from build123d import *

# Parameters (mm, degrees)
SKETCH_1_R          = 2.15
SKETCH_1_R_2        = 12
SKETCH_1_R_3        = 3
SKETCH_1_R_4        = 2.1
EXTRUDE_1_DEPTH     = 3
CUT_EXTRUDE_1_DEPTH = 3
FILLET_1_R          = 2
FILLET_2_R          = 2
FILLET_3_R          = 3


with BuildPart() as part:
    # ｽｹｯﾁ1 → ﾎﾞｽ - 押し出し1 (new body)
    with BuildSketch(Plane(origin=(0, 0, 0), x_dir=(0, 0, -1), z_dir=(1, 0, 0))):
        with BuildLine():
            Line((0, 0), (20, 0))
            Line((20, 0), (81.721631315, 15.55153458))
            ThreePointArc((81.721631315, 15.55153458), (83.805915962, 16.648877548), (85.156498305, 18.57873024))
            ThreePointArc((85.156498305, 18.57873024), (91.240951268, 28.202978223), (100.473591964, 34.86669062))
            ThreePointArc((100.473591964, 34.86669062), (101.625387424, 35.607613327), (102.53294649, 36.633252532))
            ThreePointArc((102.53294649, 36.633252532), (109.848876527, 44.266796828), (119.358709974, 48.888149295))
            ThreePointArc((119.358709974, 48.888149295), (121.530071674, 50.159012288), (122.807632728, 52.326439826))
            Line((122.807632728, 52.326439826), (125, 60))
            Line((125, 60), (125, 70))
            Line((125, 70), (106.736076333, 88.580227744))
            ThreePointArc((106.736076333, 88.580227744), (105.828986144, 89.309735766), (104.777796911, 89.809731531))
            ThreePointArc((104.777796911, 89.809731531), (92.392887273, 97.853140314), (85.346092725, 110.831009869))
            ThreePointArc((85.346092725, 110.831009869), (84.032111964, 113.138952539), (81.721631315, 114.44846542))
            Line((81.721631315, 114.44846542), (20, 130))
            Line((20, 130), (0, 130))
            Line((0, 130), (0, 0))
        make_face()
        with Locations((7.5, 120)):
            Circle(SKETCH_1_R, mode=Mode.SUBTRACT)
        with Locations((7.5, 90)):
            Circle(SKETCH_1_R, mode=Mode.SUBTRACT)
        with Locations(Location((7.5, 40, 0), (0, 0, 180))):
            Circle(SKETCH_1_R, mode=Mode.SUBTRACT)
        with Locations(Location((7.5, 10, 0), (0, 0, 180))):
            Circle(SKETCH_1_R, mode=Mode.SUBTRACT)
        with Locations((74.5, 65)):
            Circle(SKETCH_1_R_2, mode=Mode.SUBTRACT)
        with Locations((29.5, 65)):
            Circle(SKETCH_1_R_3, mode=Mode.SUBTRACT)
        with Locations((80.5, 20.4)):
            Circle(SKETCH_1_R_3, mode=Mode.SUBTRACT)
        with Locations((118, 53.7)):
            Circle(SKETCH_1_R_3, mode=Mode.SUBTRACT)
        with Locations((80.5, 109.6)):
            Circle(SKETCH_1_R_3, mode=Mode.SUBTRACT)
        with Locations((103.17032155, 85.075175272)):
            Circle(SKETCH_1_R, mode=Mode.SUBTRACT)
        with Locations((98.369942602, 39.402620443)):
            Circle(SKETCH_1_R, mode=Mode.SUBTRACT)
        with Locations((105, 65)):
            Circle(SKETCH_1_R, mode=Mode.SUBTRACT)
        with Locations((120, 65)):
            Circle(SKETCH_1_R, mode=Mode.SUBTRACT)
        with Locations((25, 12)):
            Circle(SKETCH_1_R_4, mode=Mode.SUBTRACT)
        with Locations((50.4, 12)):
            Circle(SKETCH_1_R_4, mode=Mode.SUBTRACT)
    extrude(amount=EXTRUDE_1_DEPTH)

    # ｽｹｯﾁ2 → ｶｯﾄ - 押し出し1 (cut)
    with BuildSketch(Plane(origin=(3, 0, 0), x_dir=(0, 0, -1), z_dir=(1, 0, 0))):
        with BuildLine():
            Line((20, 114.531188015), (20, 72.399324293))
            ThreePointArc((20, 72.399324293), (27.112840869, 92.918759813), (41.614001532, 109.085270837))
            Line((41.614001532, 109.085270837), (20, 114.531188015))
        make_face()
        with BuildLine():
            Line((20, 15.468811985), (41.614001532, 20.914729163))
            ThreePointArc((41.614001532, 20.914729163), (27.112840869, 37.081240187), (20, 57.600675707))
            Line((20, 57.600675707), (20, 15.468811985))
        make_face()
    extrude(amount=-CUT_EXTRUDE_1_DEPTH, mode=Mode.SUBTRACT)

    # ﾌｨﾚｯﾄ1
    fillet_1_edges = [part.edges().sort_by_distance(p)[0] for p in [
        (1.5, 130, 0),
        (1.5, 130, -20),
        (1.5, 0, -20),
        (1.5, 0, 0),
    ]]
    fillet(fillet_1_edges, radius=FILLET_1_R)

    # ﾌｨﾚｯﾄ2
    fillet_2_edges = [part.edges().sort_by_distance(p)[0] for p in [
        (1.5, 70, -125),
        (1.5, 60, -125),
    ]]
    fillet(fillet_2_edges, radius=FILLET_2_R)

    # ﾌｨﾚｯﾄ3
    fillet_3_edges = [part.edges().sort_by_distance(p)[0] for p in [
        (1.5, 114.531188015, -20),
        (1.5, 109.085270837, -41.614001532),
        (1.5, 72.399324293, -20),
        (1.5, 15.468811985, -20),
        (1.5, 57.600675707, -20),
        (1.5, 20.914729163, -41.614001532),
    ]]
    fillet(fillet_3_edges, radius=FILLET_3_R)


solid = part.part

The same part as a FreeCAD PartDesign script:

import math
import FreeCAD as App
import Part
import Sketcher

V = App.Vector
Q = App.Units.Quantity


def edges_at(feature, points):
    """Names of the edges that pass closest to the given points."""
    edges = feature.Shape.Edges
    near = lambda p: min(range(len(edges)), key=lambda i: edges[i].distToShape(Part.Vertex(*p))[0])
    return sorted({f"Edge{near(p) + 1}" for p in points})

doc = App.newDocument("Part")
body = doc.addObject("PartDesign::Body", "Body")

sketch1 = doc.addObject("Sketcher::SketchObject", "Sketch")
body.addObject(sketch1)
sketch1.AttachmentSupport = (doc.YZ_Plane, [""])
sketch1.MapMode = "FlatFace"
sketch1.addGeometry([
    Part.LineSegment(V(0, 0, 0), V(0, -20, 0)),
    Part.LineSegment(V(0, -20, 0), V(15.6, -81.7, 0)),
    Part.ArcOfCircle(Part.Circle(V(20.4, -80.5, 0), V(0, 0, 1), 5), math.radians(-166), math.radians(-111)),
    Part.ArcOfCircle(Part.Circle(V(7.7, -113.1, 0), V(0, 0, 1), 30), math.radians(25), math.radians(69)),
    Part.ArcOfCircle(Part.Circle(V(39.4, -98.4, 0), V(0, 0, 1), 5), math.radians(-155), math.radians(-124)),
    Part.ArcOfCircle(Part.Circle(V(20, -127.5, 0), V(0, 0, 1), 30), math.radians(16), math.radians(56)),
    Part.ArcOfCircle(Part.Circle(V(53.7, -118, 0), V(0, 0, 1), 5), math.radians(-164), math.radians(-106)),
    Part.LineSegment(V(52.3, -122.8, 0), V(60, -125, 0)),
    Part.LineSegment(V(60, -125, 0), V(70, -125, 0)),
    Part.LineSegment(V(70, -125, 0), V(88.6, -106.7, 0)),
    Part.ArcOfCircle(Part.Circle(V(85.1, -103.2, 0), V(0, 0, 1), 5), math.radians(-45), math.radians(-19)),
    Part.ArcOfCircle(Part.Circle(V(118.2, -114.4, 0), V(0, 0, 1), 30), math.radians(104), math.radians(161)),
    Part.ArcOfCircle(Part.Circle(V(109.6, -80.5, 0), V(0, 0, 1), 5), math.radians(-76), math.radians(-14)),
    Part.LineSegment(V(114.4, -81.7, 0), V(130, -20, 0)),
    Part.LineSegment(V(130, -20, 0), V(130, 0, 0)),
    Part.LineSegment(V(130, 0, 0), V(0, 0, 0)),
    Part.Circle(V(10, -7.5, 0), V(0, 0, 1), 2.1),
    Part.Circle(V(12, -25, 0), V(0, 0, 1), 2.1),
    Part.Circle(V(12, -50.4, 0), V(0, 0, 1), 2.1),
    Part.Circle(V(40, -7.5, 0), V(0, 0, 1), 2.1),
    Part.Circle(V(20.4, -80.5, 0), V(0, 0, 1), 3),
    Part.Circle(V(39.4, -98.4, 0), V(0, 0, 1), 2.1),
    Part.Circle(V(53.7, -118, 0), V(0, 0, 1), 3),
    Part.Circle(V(65, -29.5, 0), V(0, 0, 1), 3),
    Part.Circle(V(90, -7.5, 0), V(0, 0, 1), 2.1),
    Part.Circle(V(120, -7.5, 0), V(0, 0, 1), 2.1),
    Part.Circle(V(65, -74.5, 0), V(0, 0, 1), 12),
    Part.Circle(V(65, -105, 0), V(0, 0, 1), 2.1),
    Part.Circle(V(65, -120, 0), V(0, 0, 1), 2.1),
    Part.Circle(V(85.1, -103.2, 0), V(0, 0, 1), 2.1),
    Part.Circle(V(109.6, -80.5, 0), V(0, 0, 1), 3),
], False)
sketch1.addConstraint([
    Sketcher.Constraint("Coincident", 0, 2, 1, 1),
    Sketcher.Constraint("Tangent", 1, 2, 2, 1),
    Sketcher.Constraint("Tangent", 2, 2, 3, 2),
    Sketcher.Constraint("Tangent", 3, 1, 4, 1),
    Sketcher.Constraint("Tangent", 4, 2, 5, 2),
    Sketcher.Constraint("Tangent", 5, 1, 6, 1),
    Sketcher.Constraint("Tangent", 6, 2, 7, 1),
    Sketcher.Constraint("Coincident", 7, 2, 8, 1),
    Sketcher.Constraint("Coincident", 8, 2, 9, 1),
    Sketcher.Constraint("Tangent", 9, 2, 10, 1),
    Sketcher.Constraint("Tangent", 10, 2, 11, 2),
    Sketcher.Constraint("Tangent", 11, 1, 12, 1),
    Sketcher.Constraint("Tangent", 12, 2, 13, 1),
    Sketcher.Constraint("Coincident", 13, 2, 14, 1),
    Sketcher.Constraint("Coincident", 14, 2, 15, 1),
    Sketcher.Constraint("Coincident", 15, 2, 0, 1),
    Sketcher.Constraint("Vertical", 0),
    Sketcher.Constraint("Horizontal", 8),
    Sketcher.Constraint("Vertical", 14),
    Sketcher.Constraint("Horizontal", 15),
    Sketcher.Constraint("Coincident", 15, 2, -1, 1),
    Sketcher.Constraint("Coincident", 20, 3, 2, 3),
    Sketcher.Constraint("Coincident", 21, 3, 4, 3),
    Sketcher.Constraint("Coincident", 22, 3, 6, 3),
    Sketcher.Constraint("Coincident", 29, 3, 10, 3),
    Sketcher.Constraint("Coincident", 30, 3, 12, 3),
    Sketcher.Constraint("Equal", 2, 4),
    Sketcher.Constraint("Equal", 3, 5),
    Sketcher.Constraint("Equal", 4, 6),
    Sketcher.Constraint("Equal", 6, 10),
    Sketcher.Constraint("Equal", 5, 11),
    Sketcher.Constraint("Equal", 10, 12),
    Sketcher.Constraint("Equal", 17, 18),
    Sketcher.Constraint("Equal", 16, 19),
    Sketcher.Constraint("Equal", 19, 21),
    Sketcher.Constraint("Equal", 20, 22),
    Sketcher.Constraint("Equal", 22, 23),
    Sketcher.Constraint("Equal", 21, 24),
    Sketcher.Constraint("Equal", 24, 25),
    Sketcher.Constraint("Equal", 25, 27),
    Sketcher.Constraint("Equal", 27, 28),
    Sketcher.Constraint("Equal", 28, 29),
    Sketcher.Constraint("Equal", 23, 30),
    Sketcher.Constraint("Horizontal", 2, 3, 12, 3),
    Sketcher.Constraint("Horizontal", 16, 3, 19, 3),
    Sketcher.Constraint("Horizontal", 19, 3, 24, 3),
    Sketcher.Constraint("Horizontal", 24, 3, 25, 3),
    Sketcher.Constraint("Horizontal", 1, 2, 12, 2),
    Sketcher.Constraint("Horizontal", 0, 2, 13, 2),
    Sketcher.Constraint("Vertical", 17, 3, 18, 3),
    Sketcher.Constraint("Vertical", 23, 3, 26, 3),
    Sketcher.Constraint("Vertical", 26, 3, 27, 3),
    Sketcher.Constraint("Vertical", 27, 3, 28, 3),
    Sketcher.Constraint("Diameter", 20, Q("6 mm")),
    Sketcher.Constraint("Diameter", 26, Q("24 mm")),
    Sketcher.Constraint("Radius", 2, Q("5 mm")),
    Sketcher.Constraint("Radius", 3, Q("30 mm")),
    Sketcher.Constraint("Diameter", 16, Q("4.3 mm")),
    Sketcher.Constraint("Diameter", 17, Q("4.2 mm")),
    Sketcher.Constraint("DistanceX", 8, 1, 8, 2, Q("10 mm")),
    Sketcher.Constraint("DistanceX", 15, 2, 15, 1, Q("130 mm")),
    Sketcher.Constraint("DistanceY", 0, 2, 0, 1, Q("20 mm")),
    Sketcher.Constraint("DistanceY", 6, 3, -1, 1, Q("118 mm")),
    Sketcher.Constraint("DistanceX", -1, 1, 16, 3, Q("10 mm")),
    Sketcher.Constraint("DistanceX", -1, 1, 17, 3, Q("12 mm")),
    Sketcher.Constraint("DistanceY", 17, 3, -1, 1, Q("25 mm")),
    Sketcher.Constraint("DistanceX", -1, 1, 19, 3, Q("40 mm")),
    Sketcher.Constraint("DistanceX", -1, 1, 23, 3, Q("65 mm")),
    Sketcher.Constraint("DistanceX", -1, 1, 24, 3, Q("90 mm")),
    Sketcher.Constraint("DistanceX", -1, 1, 25, 3, Q("120 mm")),
    Sketcher.Constraint("DistanceY", 27, 3, -1, 1, Q("105 mm")),
    Sketcher.Constraint("DistanceY", 28, 3, -1, 1, Q("120 mm")),
    Sketcher.Constraint("DistanceX", -1, 1, 7, 2, Q("60 mm")),
    Sketcher.Constraint("DistanceY", 7, 2, -1, 1, Q("125 mm")),
    Sketcher.Constraint("DistanceY", 2, 3, 16, 3, Q("73 mm")),
    Sketcher.Constraint("DistanceY", 23, 3, 19, 3, Q("22 mm")),
    Sketcher.Constraint("DistanceY", 30, 3, 26, 3, Q("6 mm")),
    Sketcher.Constraint("DistanceX", -1, 1, 2, 3, Q("20.4 mm")),
    Sketcher.Constraint("DistanceY", 2, 3, -1, 1, Q("80.5 mm")),
    Sketcher.Constraint("DistanceX", -1, 1, 6, 3, Q("53.7 mm")),
    Sketcher.Constraint("DistanceY", 18, 3, -1, 1, Q("50.4 mm")),
    Sketcher.Constraint("DistanceY", 2, 2, -1, 1, Q("85.156498 mm")),
    Sketcher.Constraint("Distance", 9, Q("26.053709 mm")),
    Sketcher.Constraint("DistanceX", -1, 1, 4, 3, Q("39.40262 mm")),
    Sketcher.Constraint("DistanceY", 10, 3, -1, 1, Q("103.170322 mm")),
])
pad1 = doc.addObject("PartDesign::Pad", "Pad")
body.addObject(pad1)
pad1.Profile = sketch1
pad1.Length = 3

sketch2 = doc.addObject("Sketcher::SketchObject", "Sketch001")
body.addObject(sketch2)
sketch2.AttachmentSupport = (doc.YZ_Plane, [""])
sketch2.MapMode = "FlatFace"
sketch2.AttachmentOffset = App.Placement(V(0, 0, 3), App.Rotation())
sketch2.addGeometry([
    Part.LineSegment(V(115, -20, 0), V(72, -20, 0)),
    Part.ArcOfCircle(Part.Circle(V(65, -74, 0), V(0, 0, 1), 55), math.radians(37), math.radians(82)),
    Part.LineSegment(V(109, -42, 0), V(115, -20, 0)),
    Part.LineSegment(V(15, -20, 0), V(21, -42, 0)),
    Part.ArcOfCircle(Part.Circle(V(65, -74, 0), V(0, 0, 1), 55), math.radians(98), math.radians(143)),
    Part.LineSegment(V(58, -20, 0), V(15, -20, 0)),
], False)
sketch2.addConstraint([
    Sketcher.Constraint("Coincident", 0, 2, 1, 2),
    Sketcher.Constraint("Coincident", 1, 1, 2, 1),
    Sketcher.Constraint("Coincident", 2, 2, 0, 1),
    Sketcher.Constraint("Coincident", 3, 2, 4, 2),
    Sketcher.Constraint("Coincident", 4, 1, 5, 1),
    Sketcher.Constraint("Coincident", 5, 2, 3, 1),
    Sketcher.Constraint("Horizontal", 0),
    Sketcher.Constraint("Horizontal", 5),
    Sketcher.Constraint("Coincident", 4, 3, 1, 3),
    Sketcher.Constraint("Equal", 1, 4),
    Sketcher.Constraint("Horizontal", 1, 1, 3, 2),
    Sketcher.Constraint("Horizontal", 2, 2, 4, 1),
    Sketcher.Constraint("Equal", 0, 5),
    Sketcher.Constraint("Radius", 1, Q("55 mm")),
    Sketcher.Constraint("DistanceX", -1, 1, 1, 3, Q("65 mm")),
    Sketcher.Constraint("DistanceY", 0, 2, -1, 1, Q("20 mm")),
    Sketcher.Constraint("DistanceY", 1, 3, -1, 1, Q("74.5 mm")),
    Sketcher.Constraint("DistanceY", 1, 1, -1, 1, Q("41.614002 mm")),
    Sketcher.Constraint("Distance", 2, Q("22.289528 mm")),
])
pocket1 = doc.addObject("PartDesign::Pocket", "Pocket")
body.addObject(pocket1)
pocket1.Profile = sketch2
pocket1.Length = 3
doc.recompute()

fillet = doc.addObject("PartDesign::Fillet", "Fillet")
body.addObject(fillet)
fillet.Base = (pocket1, edges_at(pocket1, [
    (1.5, 130, 0),
    (1.5, 130, -20),
    (1.5, 0, -20),
    (1.5, 0, 0),
]))
fillet.Radius = 2
doc.recompute()

fillet2 = doc.addObject("PartDesign::Fillet", "Fillet001")
body.addObject(fillet2)
fillet2.Base = (fillet, edges_at(fillet, [(1.5, 70, -125), (1.5, 60, -125)]))
fillet2.Radius = 2
doc.recompute()

fillet3 = doc.addObject("PartDesign::Fillet", "Fillet002")
body.addObject(fillet3)
fillet3.Base = (fillet2, edges_at(fillet2, [
    (1.5, 114.531, -20),
    (1.5, 109.085, -41.614),
    (1.5, 72.399, -20),
    (1.5, 15.469, -20),
    (1.5, 57.601, -20),
    (1.5, 20.915, -41.614),
]))
fillet3.Radius = 3

doc.recompute()
